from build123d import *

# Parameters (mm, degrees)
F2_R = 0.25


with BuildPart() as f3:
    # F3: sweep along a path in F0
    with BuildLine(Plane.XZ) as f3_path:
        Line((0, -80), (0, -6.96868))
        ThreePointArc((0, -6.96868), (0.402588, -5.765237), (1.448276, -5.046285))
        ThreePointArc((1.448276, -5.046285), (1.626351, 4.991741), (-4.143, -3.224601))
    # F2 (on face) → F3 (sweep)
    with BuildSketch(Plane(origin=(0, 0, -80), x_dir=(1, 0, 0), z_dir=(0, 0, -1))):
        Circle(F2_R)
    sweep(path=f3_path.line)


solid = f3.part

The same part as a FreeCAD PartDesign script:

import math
import FreeCAD as App
import Part
import Sketcher

V = App.Vector

doc = App.newDocument("Part")
body = doc.addObject("PartDesign::Body", "Body")

# Sketch on XY plane
sketch1 = body.newObject("Sketcher::SketchObject", "Sketch")
sketch1.AttachmentSupport = (doc.getObject("XY_Plane"), [""])
sketch1.MapMode = "FlatFace"
sketch1.AttachmentOffset = App.Placement(V(0, 0, -80), App.Rotation())
sketch1.addGeometry(Part.Circle(V(0, 0, 0), V(0, 0, 1), 0.25), False)
sketch1.addConstraint([
    Sketcher.Constraint("Coincident", 0, 3, -1, 1),
    Sketcher.Constraint("Diameter", 0, 0.5),
])

# Sketch on XZ plane
sketch2 = body.newObject("Sketcher::SketchObject", "Sketch001")
sketch2.AttachmentSupport = (doc.getObject("XZ_Plane"), [""])
sketch2.MapMode = "FlatFace"
sketch2.addGeometry([
    Part.LineSegment(V(0, -80, 0), V(0, -6.96868, 0)),
    Part.ArcOfCircle(Part.Circle(V(2.000001, -6.96868, 0), V(0, 0, 1), 2.000001), math.radians(106.013413), math.radians(179.999992)),
    Part.ArcOfCircle(Part.Circle(V(0, 0, 0), V(0, 0, 1), 5.25), math.radians(-73.986598), math.radians(217.894522)),
], False)
sketch2.addConstraint([
    Sketcher.Constraint("Tangent", 0, 2, 1, 2),
    Sketcher.Constraint("Tangent", 1, 1, 2, 1),
    Sketcher.Constraint("Vertical", 0),
    Sketcher.Constraint("Coincident", 2, 3, -1, 1),
    Sketcher.Constraint("PointOnObject", 0, 1, -2),
    Sketcher.Constraint("Radius", 1, 2.000001),
    Sketcher.Constraint("Radius", 2, 5.25),
    Sketcher.Constraint("DistanceY", 0, 1, -1, 1, 80.0),
    Sketcher.Constraint("DistanceX", 2, 2, -1, 1, 4.143),
])
doc.recompute()

additivepipe = body.newObject("PartDesign::AdditivePipe", "AdditivePipe")
additivepipe.Profile = sketch1
additivepipe.Spine = (sketch2, ["Edge1", "Edge2", "Edge3"])

doc.recompute()
